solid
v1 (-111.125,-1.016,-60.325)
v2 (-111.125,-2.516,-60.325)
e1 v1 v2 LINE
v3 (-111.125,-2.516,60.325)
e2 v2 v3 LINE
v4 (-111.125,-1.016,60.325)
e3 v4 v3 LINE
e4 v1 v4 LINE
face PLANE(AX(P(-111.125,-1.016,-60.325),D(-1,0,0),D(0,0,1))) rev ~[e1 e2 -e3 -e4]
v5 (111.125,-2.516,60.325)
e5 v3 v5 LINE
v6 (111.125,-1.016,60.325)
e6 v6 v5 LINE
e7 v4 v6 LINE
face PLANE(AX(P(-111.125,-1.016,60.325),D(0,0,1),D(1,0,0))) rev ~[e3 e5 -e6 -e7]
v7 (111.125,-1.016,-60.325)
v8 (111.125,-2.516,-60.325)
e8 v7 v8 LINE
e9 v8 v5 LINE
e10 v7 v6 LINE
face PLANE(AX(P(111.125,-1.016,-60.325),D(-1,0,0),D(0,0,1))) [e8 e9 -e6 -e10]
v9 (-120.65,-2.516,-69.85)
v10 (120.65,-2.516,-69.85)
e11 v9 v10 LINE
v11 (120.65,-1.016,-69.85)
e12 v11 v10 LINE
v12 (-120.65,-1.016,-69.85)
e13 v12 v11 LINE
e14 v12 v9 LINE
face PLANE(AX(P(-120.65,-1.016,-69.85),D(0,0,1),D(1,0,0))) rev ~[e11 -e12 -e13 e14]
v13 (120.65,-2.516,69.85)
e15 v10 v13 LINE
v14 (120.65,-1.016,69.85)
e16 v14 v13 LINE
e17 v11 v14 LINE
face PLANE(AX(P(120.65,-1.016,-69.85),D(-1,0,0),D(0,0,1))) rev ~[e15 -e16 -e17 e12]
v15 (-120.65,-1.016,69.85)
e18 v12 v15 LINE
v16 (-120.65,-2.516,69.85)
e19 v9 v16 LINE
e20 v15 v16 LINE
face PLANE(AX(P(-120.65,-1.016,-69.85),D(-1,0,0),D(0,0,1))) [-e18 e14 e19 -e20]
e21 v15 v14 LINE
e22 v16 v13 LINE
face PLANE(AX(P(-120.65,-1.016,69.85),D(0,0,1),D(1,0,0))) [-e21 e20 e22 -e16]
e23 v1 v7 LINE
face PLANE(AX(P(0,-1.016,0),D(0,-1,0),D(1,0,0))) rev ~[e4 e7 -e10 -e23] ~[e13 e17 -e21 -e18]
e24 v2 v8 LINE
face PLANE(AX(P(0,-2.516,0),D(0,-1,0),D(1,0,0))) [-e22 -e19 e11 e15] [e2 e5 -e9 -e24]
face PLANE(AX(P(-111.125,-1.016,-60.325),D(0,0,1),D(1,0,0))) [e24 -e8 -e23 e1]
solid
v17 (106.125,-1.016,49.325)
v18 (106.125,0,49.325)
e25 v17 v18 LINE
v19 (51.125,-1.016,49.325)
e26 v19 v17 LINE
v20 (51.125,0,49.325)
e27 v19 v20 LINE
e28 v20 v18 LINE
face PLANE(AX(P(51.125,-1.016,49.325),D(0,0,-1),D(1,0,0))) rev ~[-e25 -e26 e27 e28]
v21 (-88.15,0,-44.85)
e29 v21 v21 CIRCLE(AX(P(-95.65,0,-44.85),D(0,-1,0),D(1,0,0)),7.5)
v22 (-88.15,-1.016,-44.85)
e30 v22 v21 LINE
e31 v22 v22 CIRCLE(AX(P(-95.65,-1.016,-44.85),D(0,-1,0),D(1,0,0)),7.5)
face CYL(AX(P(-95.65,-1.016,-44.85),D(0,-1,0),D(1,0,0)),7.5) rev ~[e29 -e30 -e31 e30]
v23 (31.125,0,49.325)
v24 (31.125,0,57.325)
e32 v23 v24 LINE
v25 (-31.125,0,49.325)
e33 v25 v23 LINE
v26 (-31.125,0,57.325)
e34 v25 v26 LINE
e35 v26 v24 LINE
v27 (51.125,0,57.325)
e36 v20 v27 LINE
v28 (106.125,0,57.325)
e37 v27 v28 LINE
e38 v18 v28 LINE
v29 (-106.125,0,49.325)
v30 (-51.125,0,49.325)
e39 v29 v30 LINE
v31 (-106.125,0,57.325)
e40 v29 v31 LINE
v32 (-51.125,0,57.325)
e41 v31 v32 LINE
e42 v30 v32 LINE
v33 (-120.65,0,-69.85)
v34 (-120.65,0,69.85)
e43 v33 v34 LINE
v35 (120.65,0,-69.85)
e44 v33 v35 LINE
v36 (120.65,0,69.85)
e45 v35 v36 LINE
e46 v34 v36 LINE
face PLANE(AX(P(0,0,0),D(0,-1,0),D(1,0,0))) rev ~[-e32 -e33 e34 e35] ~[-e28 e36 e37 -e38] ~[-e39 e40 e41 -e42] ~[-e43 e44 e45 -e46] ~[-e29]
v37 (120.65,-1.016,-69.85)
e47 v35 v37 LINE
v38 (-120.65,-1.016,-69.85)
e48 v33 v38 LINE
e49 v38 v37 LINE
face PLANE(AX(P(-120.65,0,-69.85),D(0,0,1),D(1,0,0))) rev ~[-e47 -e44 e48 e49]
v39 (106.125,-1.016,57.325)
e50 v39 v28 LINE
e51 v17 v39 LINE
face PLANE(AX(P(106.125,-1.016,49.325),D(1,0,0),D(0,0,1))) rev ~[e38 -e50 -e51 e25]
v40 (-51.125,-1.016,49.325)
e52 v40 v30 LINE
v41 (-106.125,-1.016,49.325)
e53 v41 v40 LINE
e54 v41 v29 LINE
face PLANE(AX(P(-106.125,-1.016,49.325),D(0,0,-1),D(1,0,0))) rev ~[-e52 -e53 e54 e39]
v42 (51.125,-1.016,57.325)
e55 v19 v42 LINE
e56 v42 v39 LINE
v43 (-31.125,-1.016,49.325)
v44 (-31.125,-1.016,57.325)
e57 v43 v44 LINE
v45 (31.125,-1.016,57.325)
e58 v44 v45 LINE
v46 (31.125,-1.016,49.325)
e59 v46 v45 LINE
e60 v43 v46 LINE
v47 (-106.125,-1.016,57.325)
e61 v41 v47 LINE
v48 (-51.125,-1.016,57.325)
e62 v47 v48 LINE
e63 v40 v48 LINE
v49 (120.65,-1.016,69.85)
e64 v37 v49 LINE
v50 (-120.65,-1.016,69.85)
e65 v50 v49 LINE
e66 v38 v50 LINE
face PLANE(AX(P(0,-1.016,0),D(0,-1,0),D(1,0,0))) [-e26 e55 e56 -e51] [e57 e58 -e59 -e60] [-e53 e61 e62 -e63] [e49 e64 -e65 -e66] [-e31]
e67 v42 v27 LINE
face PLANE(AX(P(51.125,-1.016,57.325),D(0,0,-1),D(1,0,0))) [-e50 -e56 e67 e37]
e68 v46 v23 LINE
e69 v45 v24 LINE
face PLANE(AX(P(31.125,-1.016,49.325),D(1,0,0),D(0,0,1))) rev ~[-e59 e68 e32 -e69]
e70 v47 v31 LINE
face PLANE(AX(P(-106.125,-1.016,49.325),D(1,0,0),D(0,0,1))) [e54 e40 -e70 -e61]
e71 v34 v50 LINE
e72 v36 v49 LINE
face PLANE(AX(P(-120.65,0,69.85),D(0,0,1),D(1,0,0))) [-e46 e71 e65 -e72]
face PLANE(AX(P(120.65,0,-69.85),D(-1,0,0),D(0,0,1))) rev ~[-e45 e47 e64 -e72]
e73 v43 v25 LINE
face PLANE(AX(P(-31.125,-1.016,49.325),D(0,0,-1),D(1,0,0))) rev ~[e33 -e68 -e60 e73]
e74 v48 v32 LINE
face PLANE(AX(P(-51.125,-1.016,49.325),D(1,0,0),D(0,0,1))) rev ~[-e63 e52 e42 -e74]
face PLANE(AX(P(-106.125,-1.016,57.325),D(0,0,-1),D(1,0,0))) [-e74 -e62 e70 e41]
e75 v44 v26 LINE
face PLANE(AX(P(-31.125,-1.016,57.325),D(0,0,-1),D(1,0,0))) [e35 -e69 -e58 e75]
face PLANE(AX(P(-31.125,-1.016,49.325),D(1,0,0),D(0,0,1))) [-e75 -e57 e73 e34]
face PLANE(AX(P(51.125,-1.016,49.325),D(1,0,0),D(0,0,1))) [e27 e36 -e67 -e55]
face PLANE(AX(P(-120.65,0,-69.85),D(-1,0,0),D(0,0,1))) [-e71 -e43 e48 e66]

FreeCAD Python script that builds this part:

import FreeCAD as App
import Part
import Sketcher

V = App.Vector
Q = App.Units.Quantity


def add_polygon(sketch, points):
    """Adds a closed chain of lines whose ends are joined by coincident constraints."""
    first, n = sketch.GeometryCount, len(points)
    for a, b in zip(points, points[1:] + points[:1]):
        sketch.addGeometry(Part.LineSegment(App.Vector(*a, 0), App.Vector(*b, 0)), False)
    for i in range(n):
        sketch.addConstraint(Sketcher.Constraint("Coincident", first + i, 2, first + (i + 1) % n, 1))

doc = App.newDocument("Part")
body = doc.addObject("PartDesign::Body", "Body")

# Sketch on XZ plane
sketch1 = body.newObject("Sketcher::SketchObject", "Sketch")
sketch1.AttachmentSupport = (doc.getObject("XZ_Plane"), [""])
sketch1.MapMode = "FlatFace"
add_polygon(sketch1, [(-121, 70), (-121, -70), (121, -70), (121, 70)])  # lines 0-3
sketch1.addConstraint([
    Sketcher.Constraint("Vertical", 0),
    Sketcher.Constraint("Horizontal", 1),
    Sketcher.Constraint("Vertical", 2),
    Sketcher.Constraint("Horizontal", 3),
    Sketcher.Constraint("Symmetric", 0, 2, 2, 2, -1, 1),
    Sketcher.Constraint("DistanceX", 1, 1, 1, 2, Q("9.5 in")),
    Sketcher.Constraint("DistanceY", 0, 2, 0, 1, Q("5.5 in")),
])
pad1 = body.newObject("PartDesign::Pad", "Pad")
pad1.Profile = sketch1
pad1.Length = Q("0.04 in")

# Sketch on XZ plane
sketch2 = body.newObject("Sketcher::SketchObject", "Sketch001")
sketch2.AttachmentSupport = (doc.getObject("XZ_Plane"), [""])
sketch2.MapMode = "FlatFace"
sketch2.AttachmentOffset = App.Placement(V(0, 0, 0.04 * 25.4), App.Rotation())
sketch2.addGeometry(Part.Circle(V(-96, -45, 0), V(0, 0, 1), 8), False)  # 0
add_polygon(sketch2, [(-106, 57), (-106, 49), (-51, 49), (-51, 57)])  # lines 1-4
add_polygon(sketch2, [(-31, 57), (-31, 49), (31, 49), (31, 57)])  # lines 5-8
add_polygon(sketch2, [(51, 57), (51, 49), (106, 49), (106, 57)])  # lines 9-12
sketch2.addConstraint([
    Sketcher.Constraint("Vertical", 1),
    Sketcher.Constraint("Horizontal", 2),
    Sketcher.Constraint("Vertical", 3),
    Sketcher.Constraint("Horizontal", 4),
    Sketcher.Constraint("Vertical", 5),
    Sketcher.Constraint("Horizontal", 6),
    Sketcher.Constraint("Vertical", 7),
    Sketcher.Constraint("Horizontal", 8),
    Sketcher.Constraint("Vertical", 9),
    Sketcher.Constraint("Horizontal", 10),
    Sketcher.Constraint("Vertical", 11),
    Sketcher.Constraint("Horizontal", 12),
    Sketcher.Constraint("Symmetric", 2, 2, 9, 2, -2),
    Sketcher.Constraint("Symmetric", 4, 2, 11, 2, -2),
    Sketcher.Constraint("Horizontal", 2, 2, 5, 2),
    Sketcher.Constraint("Horizontal", 4, 2, 7, 2),
    Sketcher.Constraint("Diameter", 0, 15.0),
    Sketcher.Constraint("DistanceX", 2, 1, 2, 2, 55.0),
    Sketcher.Constraint("DistanceX", 6, 1, 6, 2, 62.25),
    Sketcher.Constraint("DistanceY", 1, 2, 1, 1, 8.0),
    Sketcher.Constraint("DistanceX", 0, 3, -1, 1, 95.65),
    Sketcher.Constraint("DistanceY", 0, 3, -1, 1, 44.85),
    Sketcher.Constraint("DistanceX", 1, 2, -1, 1, 106.125),
    Sketcher.Constraint("DistanceY", -1, 1, 1, 2, 49.325),
    Sketcher.Constraint("DistanceX", 5, 2, -1, 1, 31.125),
])
pocket1 = body.newObject("PartDesign::Pocket", "Pocket")
pocket1.Profile = sketch2
pocket1.Type = "ThroughAll"
body2 = doc.addObject("PartDesign::Body", "Body001")

# Sketch on XZ plane
sketch3 = body2.newObject("Sketcher::SketchObject", "Sketch002")
sketch3.AttachmentSupport = (doc.getObject("XZ_Plane001"), [""])
sketch3.MapMode = "FlatFace"
sketch3.AttachmentOffset = App.Placement(V(0, 0, 0.04 * 25.4), App.Rotation())
add_polygon(sketch3, [(-121, 70), (-121, -70), (121, -70), (121, 70)])  # lines 0-3
add_polygon(sketch3, [(111, -60), (-111, -60), (-111, 60), (111, 60)])  # lines 4-7
sketch3.addConstraint([
    Sketcher.Constraint("Vertical", 0),
    Sketcher.Constraint("Horizontal", 1),
    Sketcher.Constraint("Vertical", 2),
    Sketcher.Constraint("Horizontal", 3),
    Sketcher.Constraint("Horizontal", 4),
    Sketcher.Constraint("Vertical", 5),
    Sketcher.Constraint("Horizontal", 6),
    Sketcher.Constraint("Vertical", 7),
    Sketcher.Constraint("Symmetric", 0, 2, 2, 2, -1, 1),
    Sketcher.Constraint("Symmetric", 4, 2, 6, 2, -1, 1),
    Sketcher.Constraint("DistanceX", 1, 1, 1, 2, Q("9.5 in")),
    Sketcher.Constraint("DistanceY", 0, 2, 0, 1, Q("5.5 in")),
    Sketcher.Constraint("DistanceX", 4, 2, 4, 1, Q("8.75 in")),
    Sketcher.Constraint("DistanceY", 5, 1, 5, 2, Q("4.75 in")),
])
pad2 = body2.newObject("PartDesign::Pad", "Pad001")
pad2.Profile = sketch3
pad2.Length = 1.5

doc.recompute()
